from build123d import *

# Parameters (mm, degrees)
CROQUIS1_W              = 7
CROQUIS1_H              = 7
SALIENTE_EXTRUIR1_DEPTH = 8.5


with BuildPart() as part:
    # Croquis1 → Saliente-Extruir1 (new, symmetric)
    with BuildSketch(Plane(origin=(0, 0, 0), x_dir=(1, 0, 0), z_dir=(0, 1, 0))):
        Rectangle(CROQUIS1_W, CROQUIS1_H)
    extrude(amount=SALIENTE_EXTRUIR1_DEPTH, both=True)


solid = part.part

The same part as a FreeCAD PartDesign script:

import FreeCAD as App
import Part
import Sketcher
Q = App.Units.Quantity


def add_polygon(sketch, points):
    """Adds a closed chain of lines whose ends are joined by coincident constraints."""
    first, n = sketch.GeometryCount, len(points)
    for a, b in zip(points, points[1:] + points[:1]):
        sketch.addGeometry(Part.LineSegment(App.Vector(*a, 0), App.Vector(*b, 0)), False)
    for i in range(n):
        sketch.addConstraint(Sketcher.Constraint("Coincident", first + i, 2, first + (i + 1) % n, 1))

doc = App.newDocument("Part")
body = doc.addObject("PartDesign::Body", "Body")

# Sketch on XZ plane
sketch1 = body.newObject("Sketcher::SketchObject", "Sketch")
sketch1.AttachmentSupport = (doc.getObject("XZ_Plane"), [""])
sketch1.MapMode = "FlatFace"
add_polygon(sketch1, [(-4, -4), (-4, 4), (4, 4), (4, -4)])  # lines 0-3
sketch1.addConstraint([
    Sketcher.Constraint("Vertical", 0),
    Sketcher.Constraint("Horizontal", 1),
    Sketcher.Constraint("Vertical", 2),
    Sketcher.Constraint("Horizontal", 3),
    Sketcher.Constraint("Symmetric", 0, 2, 2, 2, -1, 1),
    Sketcher.Constraint("Equal", 3, 0),
    Sketcher.Constraint("DistanceX", 1, 1, 1, 2, Q("7 mm")),
])
pad1 = body.newObject("PartDesign::Pad", "Pad")
pad1.Profile = sketch1
pad1.Length = 17
pad1.Midplane = True

doc.recompute()
